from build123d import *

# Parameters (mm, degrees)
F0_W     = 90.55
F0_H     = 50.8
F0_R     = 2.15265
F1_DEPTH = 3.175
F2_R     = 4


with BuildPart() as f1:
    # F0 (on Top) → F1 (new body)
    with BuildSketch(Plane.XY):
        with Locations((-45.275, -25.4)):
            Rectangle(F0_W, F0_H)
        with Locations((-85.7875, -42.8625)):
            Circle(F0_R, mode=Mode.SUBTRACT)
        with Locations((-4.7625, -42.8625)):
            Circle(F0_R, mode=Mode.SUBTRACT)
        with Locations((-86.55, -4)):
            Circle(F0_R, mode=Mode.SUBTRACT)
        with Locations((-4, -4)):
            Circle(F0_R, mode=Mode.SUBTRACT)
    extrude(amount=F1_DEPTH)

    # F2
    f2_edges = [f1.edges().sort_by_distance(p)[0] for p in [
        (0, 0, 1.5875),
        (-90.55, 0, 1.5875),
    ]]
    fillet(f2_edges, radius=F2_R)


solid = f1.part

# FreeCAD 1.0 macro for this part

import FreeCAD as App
import Part
import Sketcher
Q = App.Units.Quantity


def edges_at(feature, points):
    """Names of the edges that pass closest to the given points."""
    edges = feature.Shape.Edges
    near = lambda p: min(range(len(edges)), key=lambda i: edges[i].distToShape(Part.Vertex(*p))[0])
    return sorted({f"Edge{near(p) + 1}" for p in points})


def add_polygon(sketch, points):
    """Adds a closed chain of lines whose ends are joined by coincident constraints."""
    first, n = sketch.GeometryCount, len(points)
    for a, b in zip(points, points[1:] + points[:1]):
        sketch.addGeometry(Part.LineSegment(App.Vector(*a, 0), App.Vector(*b, 0)), False)
    for i in range(n):
        sketch.addConstraint(Sketcher.Constraint("Coincident", first + i, 2, first + (i + 1) % n, 1))

doc = App.newDocument("Part")
params = doc.addObject("Spreadsheet::Sheet", "Params")
for row, (alias, value) in enumerate([
    ("sketch1_height", "2 in"),
    ("pad1_length", "0.125 in"),
    ("fillet_radius", "4 mm"),
], start=1):
    params.set(f"A{row}", alias)
    params.set(f"B{row}", "=" + value)
    params.setAlias(f"B{row}", alias)

body = doc.addObject("PartDesign::Body", "Body")

# Sketch on XY plane
sketch1 = body.newObject("Sketcher::SketchObject", "Sketch")
sketch1.AttachmentSupport = (doc.getObject("XY_Plane"), [""])
sketch1.MapMode = "FlatFace"
add_polygon(sketch1, [(-90.55, 0), (-90.55, -50.8), (0, -50.8), (0, 0)])  # lines 0-3
sketch1.addGeometry(Part.Circle(App.Vector(-85.7875, -42.8625, 0), App.Vector(0, 0, 1), 2.15265), False)  # 4
sketch1.addGeometry(Part.Circle(App.Vector(-4.7625, -42.8625, 0), App.Vector(0, 0, 1), 2.15265), False)  # 5
sketch1.addGeometry(Part.Circle(App.Vector(-86.55, -4, 0), App.Vector(0, 0, 1), 2.15265), False)  # 6
sketch1.addGeometry(Part.Circle(App.Vector(-4, -4, 0), App.Vector(0, 0, 1), 2.15265), False)  # 7
sketch1.addConstraint(Sketcher.Constraint("Vertical", 0))
sketch1.addConstraint(Sketcher.Constraint("Horizontal", 1))
sketch1.addConstraint(Sketcher.Constraint("Vertical", 2))
sketch1.addConstraint(Sketcher.Constraint("Horizontal", 3))
sketch1.addConstraint(Sketcher.Constraint("Coincident", 2, 2, -1, 1))
sketch1.addConstraint(Sketcher.Constraint("Equal", 4, 5))
sketch1.addConstraint(Sketcher.Constraint("Equal", 5, 6))
sketch1.addConstraint(Sketcher.Constraint("Equal", 6, 7))
sketch1.addConstraint(Sketcher.Constraint("Horizontal", 4, 3, 5, 3))
sketch1.addConstraint(Sketcher.Constraint("Horizontal", 6, 3, 7, 3))
sketch1.addConstraint(Sketcher.Constraint("DistanceY", 0, 2, 0, 1, Q("2 in")))
sketch1.addConstraint(Sketcher.Constraint("Diameter", 4, Q("0.1695 in")))
sketch1.addConstraint(Sketcher.Constraint("DistanceX", 6, 3, 7, 3, Q("3.25 in")))
sketch1.addConstraint(Sketcher.Constraint("DistanceY", 4, 3, -1, 1, Q("1.6875 in")))
sketch1.addConstraint(Sketcher.Constraint("DistanceX", 5, 3, -1, 1, Q("0.1875 in")))
sketch1.addConstraint(Sketcher.Constraint("DistanceX", 0, 2, 4, 3, Q("0.1875 in")))
sketch1.addConstraint(Sketcher.Constraint("DistanceX", 1, 1, 1, 2, Q("90.55 mm")))
sketch1.addConstraint(Sketcher.Constraint("DistanceX", 6, 3, -1, 1, Q("86.55 mm")))
sketch1.addConstraint(Sketcher.Constraint("DistanceY", 6, 3, -1, 1, Q("4 mm")))
sketch1.setExpression("Constraints[14]", "Params.sketch1_height")
pad1 = body.newObject("PartDesign::Pad", "Pad")
pad1.Profile = sketch1
pad1.setExpression("Length", "Params.pad1_length")
doc.recompute()

fillet = body.newObject("PartDesign::Fillet", "Fillet")
fillet.Base = (pad1, edges_at(pad1, [(0, 0, 1.587), (-90.55, 0, 1.587)]))
fillet.setExpression("Radius", "Params.fillet_radius")

doc.recompute()
